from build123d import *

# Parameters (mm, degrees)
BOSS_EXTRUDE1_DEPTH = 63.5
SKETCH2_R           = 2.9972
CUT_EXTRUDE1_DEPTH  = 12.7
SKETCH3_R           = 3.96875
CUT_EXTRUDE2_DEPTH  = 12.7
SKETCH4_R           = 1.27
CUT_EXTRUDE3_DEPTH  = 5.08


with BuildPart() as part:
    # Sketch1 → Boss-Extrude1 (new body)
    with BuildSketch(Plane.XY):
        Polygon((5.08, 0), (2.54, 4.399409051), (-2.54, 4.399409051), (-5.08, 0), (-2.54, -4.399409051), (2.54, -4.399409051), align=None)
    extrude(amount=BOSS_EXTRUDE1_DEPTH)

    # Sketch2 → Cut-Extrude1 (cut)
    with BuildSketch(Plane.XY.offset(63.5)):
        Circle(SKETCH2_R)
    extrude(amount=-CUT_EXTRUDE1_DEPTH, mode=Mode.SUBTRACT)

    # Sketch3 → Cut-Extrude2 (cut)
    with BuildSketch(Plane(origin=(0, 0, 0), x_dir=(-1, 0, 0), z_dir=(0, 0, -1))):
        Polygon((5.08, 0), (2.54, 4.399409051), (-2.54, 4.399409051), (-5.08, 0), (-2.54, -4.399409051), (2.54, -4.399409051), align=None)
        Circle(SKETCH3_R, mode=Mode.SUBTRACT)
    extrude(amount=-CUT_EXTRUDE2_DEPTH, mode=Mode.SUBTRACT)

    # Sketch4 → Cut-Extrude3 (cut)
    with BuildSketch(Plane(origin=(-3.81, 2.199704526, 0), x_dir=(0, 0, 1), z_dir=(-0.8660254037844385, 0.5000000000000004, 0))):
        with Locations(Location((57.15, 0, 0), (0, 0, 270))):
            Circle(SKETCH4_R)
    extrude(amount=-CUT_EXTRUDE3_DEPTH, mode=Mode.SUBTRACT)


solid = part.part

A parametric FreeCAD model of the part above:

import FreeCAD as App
import Part
import Sketcher
from FreeCAD import Vector
Q = App.Units.Quantity


def add_polygon(sketch, points):
    """Adds a closed chain of lines whose ends are joined by coincident constraints."""
    first, n = sketch.GeometryCount, len(points)
    for a, b in zip(points, points[1:] + points[:1]):
        sketch.addGeometry(Part.LineSegment(App.Vector(*a, 0), App.Vector(*b, 0)), False)
    for i in range(n):
        sketch.addConstraint(Sketcher.Constraint("Coincident", first + i, 2, first + (i + 1) % n, 1))

doc = App.newDocument("Part")
body = doc.addObject("PartDesign::Body", "Body")

# Sketch on XY plane
sketch1 = body.newObject("Sketcher::SketchObject", "Sketch")
sketch1.AttachmentSupport = (doc.getObject("XY_Plane"), [""])
sketch1.MapMode = "FlatFace"
add_polygon(sketch1, [(5, 0), (3, 4), (-3, 4), (-5, 0), (-3, -4), (3, -4)])  # lines 0-5
sketch1.addConstraint([
    Sketcher.Constraint("Horizontal", 1),
    Sketcher.Constraint("Horizontal", 4),
    Sketcher.Constraint("Symmetric", 0, 2, 3, 2, -1, 1),
    Sketcher.Constraint("Symmetric", 2, 2, 5, 2, -1, 1),
    Sketcher.Constraint("PointOnObject", 2, 2, -1),
    Sketcher.Constraint("Parallel", 2, 5),
    Sketcher.Constraint("Vertical", 1, 2, 3, 2),
    Sketcher.Constraint("DistanceX", 1, 2, 1, 1, Q("0.2 in")),
    Sketcher.Constraint("Angle", 0, Q("120 deg")),
    Sketcher.Constraint("Distance", 0, Q("0.2 in")),
])
pad1 = body.newObject("PartDesign::Pad", "Pad")
pad1.Profile = sketch1
pad1.Length = Q("2.5 in")

# Sketch on XY plane
sketch2 = body.newObject("Sketcher::SketchObject", "Sketch001")
sketch2.AttachmentSupport = (doc.getObject("XY_Plane"), [""])
sketch2.MapMode = "FlatFace"
sketch2.AttachmentOffset = App.Placement(Vector(0, 0, 2.5 * 25.4), App.Rotation())
sketch2.addGeometry(Part.Circle(Vector(0, 0, 0), Vector(0, 0, 1), 3), False)
sketch2.addConstraint([
    Sketcher.Constraint("Coincident", 0, 3, -1, 1),
    Sketcher.Constraint("Diameter", 0, Q("0.236 in")),
])
pocket1 = body.newObject("PartDesign::Pocket", "Pocket")
pocket1.Profile = sketch2
pocket1.Length = Q("0.5 in")

# Sketch on XY plane
sketch3 = body.newObject("Sketcher::SketchObject", "Sketch002")
sketch3.AttachmentSupport = (doc.getObject("XY_Plane"), [""])
sketch3.MapMode = "FlatFace"
add_polygon(sketch3, [(-5.1, 0), (-2.5, 4.4), (2.5, 4.4), (5.1, 0), (2.5, -4.4), (-2.5, -4.4)])  # lines 0-5
sketch3.addGeometry(Part.Circle(Vector(0, 0, 0), Vector(0, 0, 1), 4), False)  # 6
sketch3.addConstraint([
    Sketcher.Constraint("Horizontal", 1),
    Sketcher.Constraint("Horizontal", 4),
    Sketcher.Constraint("Coincident", 6, 3, -1, 1),
    Sketcher.Constraint("Symmetric", 0, 2, 3, 2, -1, 1),
    Sketcher.Constraint("Symmetric", 2, 2, 5, 2, -1, 1),
    Sketcher.Constraint("PointOnObject", 2, 2, -1),
    Sketcher.Constraint("Parallel", 2, 5),
    Sketcher.Constraint("Vertical", 1, 2, 3, 2),
    Sketcher.Constraint("Diameter", 6, Q("0.3125 in")),
    Sketcher.Constraint("DistanceX", 1, 1, 1, 2, Q("0.2 in")),
    Sketcher.Constraint("Angle", 0, Q("60 deg")),
    Sketcher.Constraint("Distance", 0, Q("0.2 in")),
])
pocket2 = body.newObject("PartDesign::Pocket", "Pocket001")
pocket2.Profile = sketch3
pocket2.Length = Q("0.5 in")
pocket2.Reversed = True

# Sketch on an angled plane
sketch4 = body.newObject("Sketcher::SketchObject", "Sketch003")
sketch4.Placement = App.Placement(Vector(-3.81, 2.199705, 0), App.Rotation(Vector(0, 0, 1), Vector(0.5, 0.866025404, 0), Vector(-0.866025404, 0.5, 0), "ZXY"))
sketch4.addGeometry(Part.Circle(Vector(57.1, 0, 0), Vector(0, 0, 1), 1.3), False)
sketch4.addConstraint([
    Sketcher.Constraint("PointOnObject", 0, 3, -1),
    Sketcher.Constraint("Diameter", 0, Q("0.1 in")),
    Sketcher.Constraint("DistanceX", -1, 1, 0, 3, Q("2.25 in")),
])
pocket3 = body.newObject("PartDesign::Pocket", "Pocket002")
pocket3.Profile = sketch4
pocket3.Length = Q("0.2 in")

doc.recompute()
